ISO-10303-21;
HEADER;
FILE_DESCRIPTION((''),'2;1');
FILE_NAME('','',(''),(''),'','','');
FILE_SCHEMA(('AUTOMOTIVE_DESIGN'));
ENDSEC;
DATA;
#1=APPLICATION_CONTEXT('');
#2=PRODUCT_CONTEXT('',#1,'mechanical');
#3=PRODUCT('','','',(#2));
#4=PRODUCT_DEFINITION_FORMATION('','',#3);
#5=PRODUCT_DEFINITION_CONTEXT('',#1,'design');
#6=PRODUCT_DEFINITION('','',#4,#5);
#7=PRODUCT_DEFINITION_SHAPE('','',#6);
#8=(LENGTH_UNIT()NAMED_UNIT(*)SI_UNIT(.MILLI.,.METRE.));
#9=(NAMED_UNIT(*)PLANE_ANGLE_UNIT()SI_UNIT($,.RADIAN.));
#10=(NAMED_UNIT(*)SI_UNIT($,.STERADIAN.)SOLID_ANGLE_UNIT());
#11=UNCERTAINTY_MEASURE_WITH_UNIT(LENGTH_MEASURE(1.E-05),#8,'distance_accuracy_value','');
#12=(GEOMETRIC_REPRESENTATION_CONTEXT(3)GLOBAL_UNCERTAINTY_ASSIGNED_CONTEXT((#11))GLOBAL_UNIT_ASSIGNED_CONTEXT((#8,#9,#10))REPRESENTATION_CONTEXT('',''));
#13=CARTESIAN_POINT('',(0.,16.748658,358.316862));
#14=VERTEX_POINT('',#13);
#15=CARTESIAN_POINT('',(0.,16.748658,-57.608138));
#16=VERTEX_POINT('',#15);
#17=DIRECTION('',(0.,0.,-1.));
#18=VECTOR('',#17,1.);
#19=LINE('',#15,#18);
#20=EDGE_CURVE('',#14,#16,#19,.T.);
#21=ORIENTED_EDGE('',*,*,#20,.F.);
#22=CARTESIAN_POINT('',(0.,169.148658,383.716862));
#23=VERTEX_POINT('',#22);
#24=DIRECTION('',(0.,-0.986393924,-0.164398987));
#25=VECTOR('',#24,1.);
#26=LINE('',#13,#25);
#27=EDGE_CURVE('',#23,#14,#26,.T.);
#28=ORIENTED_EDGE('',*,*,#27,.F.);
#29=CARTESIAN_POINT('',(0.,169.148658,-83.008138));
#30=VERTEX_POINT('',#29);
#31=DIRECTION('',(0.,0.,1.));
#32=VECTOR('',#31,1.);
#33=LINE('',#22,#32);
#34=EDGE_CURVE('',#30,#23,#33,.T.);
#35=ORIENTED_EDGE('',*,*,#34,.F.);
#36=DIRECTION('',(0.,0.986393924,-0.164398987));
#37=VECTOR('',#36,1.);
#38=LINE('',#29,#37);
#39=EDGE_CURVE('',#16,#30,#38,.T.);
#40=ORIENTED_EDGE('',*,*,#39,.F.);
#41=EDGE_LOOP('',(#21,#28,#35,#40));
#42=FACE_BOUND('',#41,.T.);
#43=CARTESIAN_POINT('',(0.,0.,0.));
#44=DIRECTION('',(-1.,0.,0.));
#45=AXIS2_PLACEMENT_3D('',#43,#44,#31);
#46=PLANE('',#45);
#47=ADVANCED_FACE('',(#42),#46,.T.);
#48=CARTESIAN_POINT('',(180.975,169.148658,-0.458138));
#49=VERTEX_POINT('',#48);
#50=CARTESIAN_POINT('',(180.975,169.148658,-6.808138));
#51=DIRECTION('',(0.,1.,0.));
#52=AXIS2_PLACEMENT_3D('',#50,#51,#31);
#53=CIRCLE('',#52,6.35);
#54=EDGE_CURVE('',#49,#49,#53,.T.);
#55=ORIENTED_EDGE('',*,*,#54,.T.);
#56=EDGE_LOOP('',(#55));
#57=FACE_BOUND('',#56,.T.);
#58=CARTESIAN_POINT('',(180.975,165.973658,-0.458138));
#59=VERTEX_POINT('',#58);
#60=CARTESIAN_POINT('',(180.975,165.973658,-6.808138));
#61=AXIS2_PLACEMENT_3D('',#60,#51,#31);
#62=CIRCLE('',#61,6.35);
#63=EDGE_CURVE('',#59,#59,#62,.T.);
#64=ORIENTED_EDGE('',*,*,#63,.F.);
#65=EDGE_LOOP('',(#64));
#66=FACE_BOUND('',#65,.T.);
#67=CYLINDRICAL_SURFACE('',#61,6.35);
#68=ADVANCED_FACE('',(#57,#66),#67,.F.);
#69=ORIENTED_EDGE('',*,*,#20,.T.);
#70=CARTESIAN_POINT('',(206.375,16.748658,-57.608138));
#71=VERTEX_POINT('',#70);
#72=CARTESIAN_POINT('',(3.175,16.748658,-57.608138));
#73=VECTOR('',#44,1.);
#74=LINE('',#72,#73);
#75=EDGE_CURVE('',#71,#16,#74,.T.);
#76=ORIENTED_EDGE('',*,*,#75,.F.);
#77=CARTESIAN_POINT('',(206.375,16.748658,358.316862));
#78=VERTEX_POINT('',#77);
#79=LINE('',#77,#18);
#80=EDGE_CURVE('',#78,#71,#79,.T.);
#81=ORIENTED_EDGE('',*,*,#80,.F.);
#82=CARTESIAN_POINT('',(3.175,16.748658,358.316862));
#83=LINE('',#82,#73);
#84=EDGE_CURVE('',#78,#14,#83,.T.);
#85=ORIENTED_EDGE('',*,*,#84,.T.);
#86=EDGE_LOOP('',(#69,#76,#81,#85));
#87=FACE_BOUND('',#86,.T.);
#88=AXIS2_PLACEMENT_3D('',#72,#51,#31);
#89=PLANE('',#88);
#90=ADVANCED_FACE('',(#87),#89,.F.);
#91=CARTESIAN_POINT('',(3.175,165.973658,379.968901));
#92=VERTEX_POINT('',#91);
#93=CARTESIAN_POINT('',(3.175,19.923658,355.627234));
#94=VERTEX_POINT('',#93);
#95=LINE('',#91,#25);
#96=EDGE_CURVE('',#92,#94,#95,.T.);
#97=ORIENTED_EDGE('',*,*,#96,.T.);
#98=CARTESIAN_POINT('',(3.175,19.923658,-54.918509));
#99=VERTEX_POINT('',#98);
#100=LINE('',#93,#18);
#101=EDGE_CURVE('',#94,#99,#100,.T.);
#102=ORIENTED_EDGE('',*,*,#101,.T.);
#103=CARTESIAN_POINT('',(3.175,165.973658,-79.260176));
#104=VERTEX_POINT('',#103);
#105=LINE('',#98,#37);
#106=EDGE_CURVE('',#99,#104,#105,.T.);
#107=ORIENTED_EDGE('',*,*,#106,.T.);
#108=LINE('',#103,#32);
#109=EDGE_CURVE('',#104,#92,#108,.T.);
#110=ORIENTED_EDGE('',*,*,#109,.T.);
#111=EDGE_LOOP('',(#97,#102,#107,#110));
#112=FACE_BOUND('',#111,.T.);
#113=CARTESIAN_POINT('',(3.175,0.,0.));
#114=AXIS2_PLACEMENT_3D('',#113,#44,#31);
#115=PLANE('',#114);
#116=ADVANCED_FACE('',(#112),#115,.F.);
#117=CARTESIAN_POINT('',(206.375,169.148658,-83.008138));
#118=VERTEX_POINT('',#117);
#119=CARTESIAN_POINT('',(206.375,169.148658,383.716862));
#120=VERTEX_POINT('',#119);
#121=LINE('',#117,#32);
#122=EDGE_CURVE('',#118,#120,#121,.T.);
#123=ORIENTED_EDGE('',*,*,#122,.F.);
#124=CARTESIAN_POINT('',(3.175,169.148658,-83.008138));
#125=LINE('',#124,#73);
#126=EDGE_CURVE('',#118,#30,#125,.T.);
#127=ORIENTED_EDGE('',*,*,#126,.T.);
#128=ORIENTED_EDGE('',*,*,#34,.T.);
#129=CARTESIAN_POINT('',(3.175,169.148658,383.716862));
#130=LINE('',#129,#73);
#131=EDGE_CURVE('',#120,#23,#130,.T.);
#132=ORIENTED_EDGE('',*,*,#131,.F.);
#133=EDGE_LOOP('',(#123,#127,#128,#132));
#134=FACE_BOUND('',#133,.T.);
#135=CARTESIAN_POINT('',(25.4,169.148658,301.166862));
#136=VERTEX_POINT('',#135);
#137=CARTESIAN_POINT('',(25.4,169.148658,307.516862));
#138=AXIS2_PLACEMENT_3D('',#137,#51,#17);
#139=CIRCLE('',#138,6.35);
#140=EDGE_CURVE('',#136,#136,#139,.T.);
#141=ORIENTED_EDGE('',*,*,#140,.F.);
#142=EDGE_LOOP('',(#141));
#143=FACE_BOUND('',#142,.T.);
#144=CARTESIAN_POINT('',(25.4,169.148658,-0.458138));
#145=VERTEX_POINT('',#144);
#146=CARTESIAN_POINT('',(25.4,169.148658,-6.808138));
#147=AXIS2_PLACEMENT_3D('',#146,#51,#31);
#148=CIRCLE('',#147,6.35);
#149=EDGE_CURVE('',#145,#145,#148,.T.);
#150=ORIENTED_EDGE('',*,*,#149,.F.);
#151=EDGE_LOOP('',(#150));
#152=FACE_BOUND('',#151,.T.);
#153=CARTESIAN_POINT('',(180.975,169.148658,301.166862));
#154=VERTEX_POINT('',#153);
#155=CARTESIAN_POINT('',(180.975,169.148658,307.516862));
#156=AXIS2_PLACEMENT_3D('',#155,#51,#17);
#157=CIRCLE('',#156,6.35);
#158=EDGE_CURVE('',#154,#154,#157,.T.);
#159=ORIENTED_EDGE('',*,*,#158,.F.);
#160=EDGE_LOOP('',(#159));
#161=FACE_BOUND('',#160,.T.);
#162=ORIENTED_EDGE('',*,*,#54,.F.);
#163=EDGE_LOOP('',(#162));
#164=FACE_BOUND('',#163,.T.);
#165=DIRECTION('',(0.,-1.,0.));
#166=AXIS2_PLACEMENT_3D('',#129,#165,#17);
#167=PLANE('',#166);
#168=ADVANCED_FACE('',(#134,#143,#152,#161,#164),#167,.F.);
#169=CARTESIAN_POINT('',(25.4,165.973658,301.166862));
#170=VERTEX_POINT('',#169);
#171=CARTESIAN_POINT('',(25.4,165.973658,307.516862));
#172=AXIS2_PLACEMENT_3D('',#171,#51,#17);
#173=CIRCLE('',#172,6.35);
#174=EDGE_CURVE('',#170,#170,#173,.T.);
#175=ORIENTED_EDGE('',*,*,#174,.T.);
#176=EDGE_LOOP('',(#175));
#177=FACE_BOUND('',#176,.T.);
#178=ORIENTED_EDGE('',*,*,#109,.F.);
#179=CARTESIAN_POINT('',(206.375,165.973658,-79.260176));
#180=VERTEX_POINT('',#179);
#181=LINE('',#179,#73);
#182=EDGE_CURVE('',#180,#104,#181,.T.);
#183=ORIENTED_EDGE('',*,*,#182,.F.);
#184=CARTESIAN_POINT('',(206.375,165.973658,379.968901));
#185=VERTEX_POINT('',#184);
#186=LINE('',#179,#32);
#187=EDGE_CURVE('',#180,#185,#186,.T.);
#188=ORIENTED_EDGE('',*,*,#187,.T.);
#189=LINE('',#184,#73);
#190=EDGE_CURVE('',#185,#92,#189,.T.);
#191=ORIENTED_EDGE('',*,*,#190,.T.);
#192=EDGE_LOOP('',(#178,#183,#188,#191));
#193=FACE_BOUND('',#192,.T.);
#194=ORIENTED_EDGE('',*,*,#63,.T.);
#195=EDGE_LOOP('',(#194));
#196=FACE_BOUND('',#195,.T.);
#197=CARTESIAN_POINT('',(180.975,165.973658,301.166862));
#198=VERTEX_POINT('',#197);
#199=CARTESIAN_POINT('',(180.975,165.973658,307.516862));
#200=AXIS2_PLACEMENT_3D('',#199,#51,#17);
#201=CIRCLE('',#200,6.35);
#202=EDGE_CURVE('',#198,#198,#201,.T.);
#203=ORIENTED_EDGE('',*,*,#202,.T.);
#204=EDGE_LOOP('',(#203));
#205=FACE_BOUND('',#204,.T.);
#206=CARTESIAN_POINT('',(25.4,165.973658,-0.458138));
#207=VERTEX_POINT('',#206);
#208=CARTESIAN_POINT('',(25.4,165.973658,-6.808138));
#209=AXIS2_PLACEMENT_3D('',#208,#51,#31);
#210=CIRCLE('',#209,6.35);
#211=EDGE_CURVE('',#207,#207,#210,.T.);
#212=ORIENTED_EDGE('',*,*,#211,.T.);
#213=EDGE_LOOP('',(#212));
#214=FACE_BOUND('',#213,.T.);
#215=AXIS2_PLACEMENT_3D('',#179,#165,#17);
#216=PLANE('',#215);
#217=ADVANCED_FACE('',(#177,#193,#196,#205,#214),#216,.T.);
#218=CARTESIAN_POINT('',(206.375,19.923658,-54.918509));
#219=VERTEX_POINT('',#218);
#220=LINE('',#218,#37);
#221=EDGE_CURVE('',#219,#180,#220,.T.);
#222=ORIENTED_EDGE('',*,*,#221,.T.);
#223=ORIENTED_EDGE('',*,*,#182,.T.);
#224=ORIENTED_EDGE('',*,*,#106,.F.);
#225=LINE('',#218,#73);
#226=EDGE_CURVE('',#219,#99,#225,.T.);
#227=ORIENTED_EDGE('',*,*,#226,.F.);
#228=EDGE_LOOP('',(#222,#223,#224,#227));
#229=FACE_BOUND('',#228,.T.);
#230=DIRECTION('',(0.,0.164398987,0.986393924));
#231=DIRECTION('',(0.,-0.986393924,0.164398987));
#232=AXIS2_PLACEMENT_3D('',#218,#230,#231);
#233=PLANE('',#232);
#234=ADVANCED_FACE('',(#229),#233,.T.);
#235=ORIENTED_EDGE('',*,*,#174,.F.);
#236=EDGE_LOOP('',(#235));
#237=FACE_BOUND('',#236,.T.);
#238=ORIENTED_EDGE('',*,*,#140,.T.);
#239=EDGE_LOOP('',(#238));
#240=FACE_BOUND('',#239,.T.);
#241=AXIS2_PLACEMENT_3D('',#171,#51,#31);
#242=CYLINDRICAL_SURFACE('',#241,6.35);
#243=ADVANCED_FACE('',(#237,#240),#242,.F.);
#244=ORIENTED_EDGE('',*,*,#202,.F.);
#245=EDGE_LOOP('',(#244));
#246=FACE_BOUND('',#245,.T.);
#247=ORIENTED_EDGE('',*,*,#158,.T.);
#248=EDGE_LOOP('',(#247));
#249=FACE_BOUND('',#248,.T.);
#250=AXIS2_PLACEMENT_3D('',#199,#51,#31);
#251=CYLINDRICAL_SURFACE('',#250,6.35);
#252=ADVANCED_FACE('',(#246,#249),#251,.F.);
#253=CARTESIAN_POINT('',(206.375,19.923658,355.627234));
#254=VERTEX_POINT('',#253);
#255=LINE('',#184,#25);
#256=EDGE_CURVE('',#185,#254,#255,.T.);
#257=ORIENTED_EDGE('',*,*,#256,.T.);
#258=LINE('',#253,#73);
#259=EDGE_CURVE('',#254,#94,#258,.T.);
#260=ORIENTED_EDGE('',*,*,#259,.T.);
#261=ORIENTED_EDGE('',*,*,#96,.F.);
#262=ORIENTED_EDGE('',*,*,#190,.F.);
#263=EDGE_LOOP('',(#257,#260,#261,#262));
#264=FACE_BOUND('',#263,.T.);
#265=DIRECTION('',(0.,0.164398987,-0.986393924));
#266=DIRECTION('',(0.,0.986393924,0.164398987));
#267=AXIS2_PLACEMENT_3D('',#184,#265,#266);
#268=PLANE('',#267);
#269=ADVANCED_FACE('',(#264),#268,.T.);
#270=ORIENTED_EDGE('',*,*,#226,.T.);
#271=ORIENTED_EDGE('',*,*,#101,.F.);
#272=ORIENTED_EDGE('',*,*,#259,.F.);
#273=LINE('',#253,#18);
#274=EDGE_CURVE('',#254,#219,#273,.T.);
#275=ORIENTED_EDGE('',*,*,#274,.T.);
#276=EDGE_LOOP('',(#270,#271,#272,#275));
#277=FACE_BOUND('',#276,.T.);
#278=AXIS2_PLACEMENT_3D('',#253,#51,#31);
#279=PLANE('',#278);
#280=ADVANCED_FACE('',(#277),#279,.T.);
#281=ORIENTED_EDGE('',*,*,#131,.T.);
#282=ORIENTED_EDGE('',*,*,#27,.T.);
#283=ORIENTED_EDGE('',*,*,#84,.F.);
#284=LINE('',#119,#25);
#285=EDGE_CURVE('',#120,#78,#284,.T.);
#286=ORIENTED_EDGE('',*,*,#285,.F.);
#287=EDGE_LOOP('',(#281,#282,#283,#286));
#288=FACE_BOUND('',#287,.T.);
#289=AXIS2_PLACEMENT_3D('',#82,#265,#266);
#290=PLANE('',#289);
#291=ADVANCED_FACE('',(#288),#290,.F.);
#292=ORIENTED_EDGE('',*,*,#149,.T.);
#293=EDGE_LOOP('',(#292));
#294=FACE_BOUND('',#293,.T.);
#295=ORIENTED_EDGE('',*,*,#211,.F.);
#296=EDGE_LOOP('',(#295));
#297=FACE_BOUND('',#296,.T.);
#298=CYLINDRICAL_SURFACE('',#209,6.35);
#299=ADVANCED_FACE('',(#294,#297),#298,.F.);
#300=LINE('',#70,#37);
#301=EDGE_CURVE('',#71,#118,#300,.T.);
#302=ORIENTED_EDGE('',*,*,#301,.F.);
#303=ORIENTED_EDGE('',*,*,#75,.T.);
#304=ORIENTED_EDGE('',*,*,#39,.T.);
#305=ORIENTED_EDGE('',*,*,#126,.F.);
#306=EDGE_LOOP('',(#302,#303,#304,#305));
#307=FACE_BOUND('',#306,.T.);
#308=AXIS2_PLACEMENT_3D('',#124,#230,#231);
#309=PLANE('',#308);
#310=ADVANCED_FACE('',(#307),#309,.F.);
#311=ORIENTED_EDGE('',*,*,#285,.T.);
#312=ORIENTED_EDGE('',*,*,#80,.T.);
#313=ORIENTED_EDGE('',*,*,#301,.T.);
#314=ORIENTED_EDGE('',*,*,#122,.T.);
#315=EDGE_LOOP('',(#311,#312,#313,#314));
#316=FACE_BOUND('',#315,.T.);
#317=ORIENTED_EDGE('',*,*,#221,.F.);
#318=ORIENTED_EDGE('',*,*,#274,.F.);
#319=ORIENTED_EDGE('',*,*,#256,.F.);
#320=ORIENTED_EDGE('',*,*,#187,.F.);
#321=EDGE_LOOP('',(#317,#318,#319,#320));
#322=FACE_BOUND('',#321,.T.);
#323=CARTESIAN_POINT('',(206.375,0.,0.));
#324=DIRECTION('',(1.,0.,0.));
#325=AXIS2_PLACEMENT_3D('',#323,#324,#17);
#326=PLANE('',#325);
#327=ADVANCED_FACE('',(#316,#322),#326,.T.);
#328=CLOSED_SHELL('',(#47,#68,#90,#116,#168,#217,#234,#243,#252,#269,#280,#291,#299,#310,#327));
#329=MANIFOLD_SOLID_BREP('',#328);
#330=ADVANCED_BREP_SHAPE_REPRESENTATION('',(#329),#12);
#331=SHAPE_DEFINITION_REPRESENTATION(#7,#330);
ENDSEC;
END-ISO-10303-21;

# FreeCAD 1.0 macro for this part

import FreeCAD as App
import Part
import Sketcher
from FreeCAD import Vector
Q = App.Units.Quantity

doc = App.newDocument("Part")
body = doc.addObject("PartDesign::Body", "Body")

sketch1 = body.newObject("Sketcher::SketchObject", "Sketch")
sketch1.AttachmentSupport = (doc.getObject("YZ_Plane"), [""])
sketch1.MapMode = "FlatFace"
sketch1.addGeometry([
    Part.LineSegment(Vector(169, 384, 0), Vector(17, 358, 0)),
    Part.LineSegment(Vector(17, 358, 0), Vector(17, -58, 0)),
    Part.LineSegment(Vector(17, -58, 0), Vector(169, -83, 0)),
    Part.LineSegment(Vector(169, -83, 0), Vector(169, 384, 0)),
], False)
sketch1.addConstraint([
    Sketcher.Constraint("Coincident", 0, 2, 1, 1),
    Sketcher.Constraint("Coincident", 1, 2, 2, 1),
    Sketcher.Constraint("Coincident", 2, 2, 3, 1),
    Sketcher.Constraint("Coincident", 3, 2, 0, 1),
    Sketcher.Constraint("Vertical", 1),
    Sketcher.Constraint("Vertical", 3),
    Sketcher.Constraint("Equal", 0, 2),
    Sketcher.Constraint("DistanceX", 1, 2, 2, 2, Q("6 in")),
    Sketcher.Constraint("DistanceY", 2, 2, 1, 2, Q("1 in")),
    Sketcher.Constraint("DistanceY", 1, 2, 1, 1, Q("16.375 in")),
    Sketcher.Constraint("DistanceX", -1, 1, 0, 2, 16.748658),
    Sketcher.Constraint("DistanceY", -1, 1, 0, 2, 358.316862),
])
pad1 = body.newObject("PartDesign::Pad", "Pad")
pad1.Profile = sketch1
pad1.Length = Q("0.125 in")

sketch2 = body.newObject("Sketcher::SketchObject", "Sketch001")
sketch2.AttachmentSupport = (doc.getObject("YZ_Plane"), [""])
sketch2.MapMode = "FlatFace"
sketch2.AttachmentOffset = App.Placement(Vector(0, 0, 0.125 * 25.4), App.Rotation())
sketch2.addGeometry([
    Part.LineSegment(Vector(169, 384, 0), Vector(17, 358, 0)),
    Part.LineSegment(Vector(17, 358, 0), Vector(17, -58, 0)),
    Part.LineSegment(Vector(17, -58, 0), Vector(169, -83, 0)),
    Part.LineSegment(Vector(169, -83, 0), Vector(169, 384, 0)),
    Part.LineSegment(Vector(166, -79, 0), Vector(20, -55, 0)),
    Part.LineSegment(Vector(20, -55, 0), Vector(20, 356, 0)),
    Part.LineSegment(Vector(20, 356, 0), Vector(166, 380, 0)),
    Part.LineSegment(Vector(166, 380, 0), Vector(166, -79, 0)),
], False)
sketch2.addConstraint([
    Sketcher.Constraint("Coincident", 0, 2, 1, 1),
    Sketcher.Constraint("Coincident", 1, 2, 2, 1),
    Sketcher.Constraint("Coincident", 2, 2, 3, 1),
    Sketcher.Constraint("Coincident", 3, 2, 0, 1),
    Sketcher.Constraint("Coincident", 4, 2, 5, 1),
    Sketcher.Constraint("Coincident", 5, 2, 6, 1),
    Sketcher.Constraint("Coincident", 6, 2, 7, 1),
    Sketcher.Constraint("Coincident", 7, 2, 4, 1),
    Sketcher.Constraint("Vertical", 1),
    Sketcher.Constraint("Vertical", 3),
    Sketcher.Constraint("Vertical", 5),
    Sketcher.Constraint("Vertical", 7),
    Sketcher.Constraint("Parallel", 2, 4),
    Sketcher.Constraint("Parallel", 0, 6),
    Sketcher.Constraint("Equal", 0, 2),
    Sketcher.Constraint("DistanceX", 1, 2, 2, 2, Q("6 in")),
    Sketcher.Constraint("DistanceY", 2, 2, 1, 2, Q("1 in")),
    Sketcher.Constraint("DistanceY", 1, 2, 1, 1, Q("16.375 in")),
    Sketcher.Constraint("DistanceX", 5, 2, 6, 2, Q("5.75 in")),
    Sketcher.Constraint("DistanceX", 1, 2, 4, 2, Q("0.125 in")),
    Sketcher.Constraint("DistanceY", -1, 1, 6, 2, 379.968901),
    Sketcher.Constraint("DistanceY", 5, 1, 5, 2, 410.545743),
    Sketcher.Constraint("DistanceY", 1, 2, 4, 2, 2.689629),
    Sketcher.Constraint("DistanceX", -1, 1, 0, 2, 16.748658),
])
pad2 = body.newObject("PartDesign::Pad", "Pad001")
pad2.Profile = sketch2
pad2.Length = Q("8 in")

sketch3 = body.newObject("Sketcher::SketchObject", "Sketch002")
sketch3.AttachmentSupport = (doc.getObject("XZ_Plane"), [""])
sketch3.MapMode = "FlatFace"
sketch3.AttachmentOffset = App.Placement(Vector(0, 0, -169.148658), App.Rotation())
sketch3.addGeometry([
    Part.Circle(Vector(181, -7, 0), Vector(0, 0, 1), 6),
    Part.Circle(Vector(25, -7, 0), Vector(0, 0, 1), 6),
    Part.Circle(Vector(25, 308, 0), Vector(0, 0, 1), 6),
    Part.Circle(Vector(181, 308, 0), Vector(0, 0, 1), 6),
], False)
sketch3.addConstraint([
    Sketcher.Constraint("Equal", 0, 1),
    Sketcher.Constraint("Equal", 1, 2),
    Sketcher.Constraint("Equal", 2, 3),
    Sketcher.Constraint("Horizontal", 0, 3, 1, 3),
    Sketcher.Constraint("Horizontal", 2, 3, 3, 3),
    Sketcher.Constraint("Vertical", 1, 3, 2, 3),
    Sketcher.Constraint("Vertical", 0, 3, 3, 3),
    Sketcher.Constraint("Diameter", 0, Q("0.5 in")),
    Sketcher.Constraint("DistanceX", -1, 1, 1, 3, Q("1 in")),
    Sketcher.Constraint("DistanceX", -1, 1, 0, 3, Q("7.125 in")),
    Sketcher.Constraint("DistanceY", 1, 3, 2, 3, Q("12.375 in")),
    Sketcher.Constraint("DistanceY", 0, 3, -1, 1, 6.808138),
])
pocket1 = body.newObject("PartDesign::Pocket", "Pocket")
pocket1.Profile = sketch3
pocket1.Length = Q("0.125 in")
pocket1.Reversed = True

doc.recompute()
